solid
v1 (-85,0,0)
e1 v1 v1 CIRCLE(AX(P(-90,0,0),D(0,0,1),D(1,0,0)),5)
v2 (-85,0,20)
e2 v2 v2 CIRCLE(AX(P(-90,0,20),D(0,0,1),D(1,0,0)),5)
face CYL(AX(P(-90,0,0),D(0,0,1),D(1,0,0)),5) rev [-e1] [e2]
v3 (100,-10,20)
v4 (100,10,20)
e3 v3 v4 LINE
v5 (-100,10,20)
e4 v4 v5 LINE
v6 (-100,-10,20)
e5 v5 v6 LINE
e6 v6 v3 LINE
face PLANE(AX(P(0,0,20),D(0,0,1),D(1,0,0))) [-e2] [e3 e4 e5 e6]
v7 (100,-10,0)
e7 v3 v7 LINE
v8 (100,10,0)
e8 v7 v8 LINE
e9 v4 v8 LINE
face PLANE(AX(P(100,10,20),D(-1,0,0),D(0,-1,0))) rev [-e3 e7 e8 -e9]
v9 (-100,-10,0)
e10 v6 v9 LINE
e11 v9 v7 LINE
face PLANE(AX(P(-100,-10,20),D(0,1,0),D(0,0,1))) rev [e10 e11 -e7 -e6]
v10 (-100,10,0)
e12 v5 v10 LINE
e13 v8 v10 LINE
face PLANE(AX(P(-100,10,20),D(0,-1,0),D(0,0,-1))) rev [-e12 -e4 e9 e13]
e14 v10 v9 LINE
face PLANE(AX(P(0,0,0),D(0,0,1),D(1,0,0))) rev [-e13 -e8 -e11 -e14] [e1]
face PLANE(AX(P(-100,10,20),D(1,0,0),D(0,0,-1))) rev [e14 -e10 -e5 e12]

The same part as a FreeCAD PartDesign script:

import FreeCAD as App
import Part
import Sketcher
Q = App.Units.Quantity


def add_polygon(sketch, points):
    """Adds a closed chain of lines whose ends are joined by coincident constraints."""
    first, n = sketch.GeometryCount, len(points)
    for a, b in zip(points, points[1:] + points[:1]):
        sketch.addGeometry(Part.LineSegment(App.Vector(*a, 0), App.Vector(*b, 0)), False)
    for i in range(n):
        sketch.addConstraint(Sketcher.Constraint("Coincident", first + i, 2, first + (i + 1) % n, 1))

doc = App.newDocument("Part")
body = doc.addObject("PartDesign::Body", "Body")

# Sketch on XY plane
sketch1 = body.newObject("Sketcher::SketchObject", "Sketch")
sketch1.AttachmentSupport = (doc.getObject("XY_Plane"), [""])
sketch1.MapMode = "FlatFace"
add_polygon(sketch1, [(-100, 10), (-100, -10), (100, -10), (100, 10)])  # lines 0-3
sketch1.addConstraint(Sketcher.Constraint("Vertical", 0))
sketch1.addConstraint(Sketcher.Constraint("Horizontal", 1))
sketch1.addConstraint(Sketcher.Constraint("Vertical", 2))
sketch1.addConstraint(Sketcher.Constraint("Horizontal", 3))
sketch1.addConstraint(Sketcher.Constraint("Symmetric", 0, 2, 2, 2, -1, 1))
sketch1.addConstraint(Sketcher.Constraint("DistanceX", 1, 1, 1, 2, Q("200 mm")))
sketch1.addConstraint(Sketcher.Constraint("DistanceY", 0, 2, 0, 1, Q("20 mm")))
pad1 = body.newObject("PartDesign::Pad", "Pad")
pad1.Profile = sketch1
pad1.Length = 20

# Sketch on XY plane
sketch2 = body.newObject("Sketcher::SketchObject", "Sketch001")
sketch2.AttachmentSupport = (doc.getObject("XY_Plane"), [""])
sketch2.MapMode = "FlatFace"
sketch2.AttachmentOffset = App.Placement(App.Vector(0, 0, 20), App.Rotation())
sketch2.addGeometry(Part.Circle(App.Vector(-90, 0, 0), App.Vector(0, 0, 1), 5), False)
sketch2.addConstraint(Sketcher.Constraint("PointOnObject", 0, 3, -1))
sketch2.addConstraint(Sketcher.Constraint("Diameter", 0, Q("10 mm")))
sketch2.addConstraint(Sketcher.Constraint("DistanceX", 0, 3, -1, 1, Q("90 mm")))
pocket1 = body.newObject("PartDesign::Pocket", "Pocket")
pocket1.Profile = sketch2
pocket1.Type = "ThroughAll"

doc.recompute()
